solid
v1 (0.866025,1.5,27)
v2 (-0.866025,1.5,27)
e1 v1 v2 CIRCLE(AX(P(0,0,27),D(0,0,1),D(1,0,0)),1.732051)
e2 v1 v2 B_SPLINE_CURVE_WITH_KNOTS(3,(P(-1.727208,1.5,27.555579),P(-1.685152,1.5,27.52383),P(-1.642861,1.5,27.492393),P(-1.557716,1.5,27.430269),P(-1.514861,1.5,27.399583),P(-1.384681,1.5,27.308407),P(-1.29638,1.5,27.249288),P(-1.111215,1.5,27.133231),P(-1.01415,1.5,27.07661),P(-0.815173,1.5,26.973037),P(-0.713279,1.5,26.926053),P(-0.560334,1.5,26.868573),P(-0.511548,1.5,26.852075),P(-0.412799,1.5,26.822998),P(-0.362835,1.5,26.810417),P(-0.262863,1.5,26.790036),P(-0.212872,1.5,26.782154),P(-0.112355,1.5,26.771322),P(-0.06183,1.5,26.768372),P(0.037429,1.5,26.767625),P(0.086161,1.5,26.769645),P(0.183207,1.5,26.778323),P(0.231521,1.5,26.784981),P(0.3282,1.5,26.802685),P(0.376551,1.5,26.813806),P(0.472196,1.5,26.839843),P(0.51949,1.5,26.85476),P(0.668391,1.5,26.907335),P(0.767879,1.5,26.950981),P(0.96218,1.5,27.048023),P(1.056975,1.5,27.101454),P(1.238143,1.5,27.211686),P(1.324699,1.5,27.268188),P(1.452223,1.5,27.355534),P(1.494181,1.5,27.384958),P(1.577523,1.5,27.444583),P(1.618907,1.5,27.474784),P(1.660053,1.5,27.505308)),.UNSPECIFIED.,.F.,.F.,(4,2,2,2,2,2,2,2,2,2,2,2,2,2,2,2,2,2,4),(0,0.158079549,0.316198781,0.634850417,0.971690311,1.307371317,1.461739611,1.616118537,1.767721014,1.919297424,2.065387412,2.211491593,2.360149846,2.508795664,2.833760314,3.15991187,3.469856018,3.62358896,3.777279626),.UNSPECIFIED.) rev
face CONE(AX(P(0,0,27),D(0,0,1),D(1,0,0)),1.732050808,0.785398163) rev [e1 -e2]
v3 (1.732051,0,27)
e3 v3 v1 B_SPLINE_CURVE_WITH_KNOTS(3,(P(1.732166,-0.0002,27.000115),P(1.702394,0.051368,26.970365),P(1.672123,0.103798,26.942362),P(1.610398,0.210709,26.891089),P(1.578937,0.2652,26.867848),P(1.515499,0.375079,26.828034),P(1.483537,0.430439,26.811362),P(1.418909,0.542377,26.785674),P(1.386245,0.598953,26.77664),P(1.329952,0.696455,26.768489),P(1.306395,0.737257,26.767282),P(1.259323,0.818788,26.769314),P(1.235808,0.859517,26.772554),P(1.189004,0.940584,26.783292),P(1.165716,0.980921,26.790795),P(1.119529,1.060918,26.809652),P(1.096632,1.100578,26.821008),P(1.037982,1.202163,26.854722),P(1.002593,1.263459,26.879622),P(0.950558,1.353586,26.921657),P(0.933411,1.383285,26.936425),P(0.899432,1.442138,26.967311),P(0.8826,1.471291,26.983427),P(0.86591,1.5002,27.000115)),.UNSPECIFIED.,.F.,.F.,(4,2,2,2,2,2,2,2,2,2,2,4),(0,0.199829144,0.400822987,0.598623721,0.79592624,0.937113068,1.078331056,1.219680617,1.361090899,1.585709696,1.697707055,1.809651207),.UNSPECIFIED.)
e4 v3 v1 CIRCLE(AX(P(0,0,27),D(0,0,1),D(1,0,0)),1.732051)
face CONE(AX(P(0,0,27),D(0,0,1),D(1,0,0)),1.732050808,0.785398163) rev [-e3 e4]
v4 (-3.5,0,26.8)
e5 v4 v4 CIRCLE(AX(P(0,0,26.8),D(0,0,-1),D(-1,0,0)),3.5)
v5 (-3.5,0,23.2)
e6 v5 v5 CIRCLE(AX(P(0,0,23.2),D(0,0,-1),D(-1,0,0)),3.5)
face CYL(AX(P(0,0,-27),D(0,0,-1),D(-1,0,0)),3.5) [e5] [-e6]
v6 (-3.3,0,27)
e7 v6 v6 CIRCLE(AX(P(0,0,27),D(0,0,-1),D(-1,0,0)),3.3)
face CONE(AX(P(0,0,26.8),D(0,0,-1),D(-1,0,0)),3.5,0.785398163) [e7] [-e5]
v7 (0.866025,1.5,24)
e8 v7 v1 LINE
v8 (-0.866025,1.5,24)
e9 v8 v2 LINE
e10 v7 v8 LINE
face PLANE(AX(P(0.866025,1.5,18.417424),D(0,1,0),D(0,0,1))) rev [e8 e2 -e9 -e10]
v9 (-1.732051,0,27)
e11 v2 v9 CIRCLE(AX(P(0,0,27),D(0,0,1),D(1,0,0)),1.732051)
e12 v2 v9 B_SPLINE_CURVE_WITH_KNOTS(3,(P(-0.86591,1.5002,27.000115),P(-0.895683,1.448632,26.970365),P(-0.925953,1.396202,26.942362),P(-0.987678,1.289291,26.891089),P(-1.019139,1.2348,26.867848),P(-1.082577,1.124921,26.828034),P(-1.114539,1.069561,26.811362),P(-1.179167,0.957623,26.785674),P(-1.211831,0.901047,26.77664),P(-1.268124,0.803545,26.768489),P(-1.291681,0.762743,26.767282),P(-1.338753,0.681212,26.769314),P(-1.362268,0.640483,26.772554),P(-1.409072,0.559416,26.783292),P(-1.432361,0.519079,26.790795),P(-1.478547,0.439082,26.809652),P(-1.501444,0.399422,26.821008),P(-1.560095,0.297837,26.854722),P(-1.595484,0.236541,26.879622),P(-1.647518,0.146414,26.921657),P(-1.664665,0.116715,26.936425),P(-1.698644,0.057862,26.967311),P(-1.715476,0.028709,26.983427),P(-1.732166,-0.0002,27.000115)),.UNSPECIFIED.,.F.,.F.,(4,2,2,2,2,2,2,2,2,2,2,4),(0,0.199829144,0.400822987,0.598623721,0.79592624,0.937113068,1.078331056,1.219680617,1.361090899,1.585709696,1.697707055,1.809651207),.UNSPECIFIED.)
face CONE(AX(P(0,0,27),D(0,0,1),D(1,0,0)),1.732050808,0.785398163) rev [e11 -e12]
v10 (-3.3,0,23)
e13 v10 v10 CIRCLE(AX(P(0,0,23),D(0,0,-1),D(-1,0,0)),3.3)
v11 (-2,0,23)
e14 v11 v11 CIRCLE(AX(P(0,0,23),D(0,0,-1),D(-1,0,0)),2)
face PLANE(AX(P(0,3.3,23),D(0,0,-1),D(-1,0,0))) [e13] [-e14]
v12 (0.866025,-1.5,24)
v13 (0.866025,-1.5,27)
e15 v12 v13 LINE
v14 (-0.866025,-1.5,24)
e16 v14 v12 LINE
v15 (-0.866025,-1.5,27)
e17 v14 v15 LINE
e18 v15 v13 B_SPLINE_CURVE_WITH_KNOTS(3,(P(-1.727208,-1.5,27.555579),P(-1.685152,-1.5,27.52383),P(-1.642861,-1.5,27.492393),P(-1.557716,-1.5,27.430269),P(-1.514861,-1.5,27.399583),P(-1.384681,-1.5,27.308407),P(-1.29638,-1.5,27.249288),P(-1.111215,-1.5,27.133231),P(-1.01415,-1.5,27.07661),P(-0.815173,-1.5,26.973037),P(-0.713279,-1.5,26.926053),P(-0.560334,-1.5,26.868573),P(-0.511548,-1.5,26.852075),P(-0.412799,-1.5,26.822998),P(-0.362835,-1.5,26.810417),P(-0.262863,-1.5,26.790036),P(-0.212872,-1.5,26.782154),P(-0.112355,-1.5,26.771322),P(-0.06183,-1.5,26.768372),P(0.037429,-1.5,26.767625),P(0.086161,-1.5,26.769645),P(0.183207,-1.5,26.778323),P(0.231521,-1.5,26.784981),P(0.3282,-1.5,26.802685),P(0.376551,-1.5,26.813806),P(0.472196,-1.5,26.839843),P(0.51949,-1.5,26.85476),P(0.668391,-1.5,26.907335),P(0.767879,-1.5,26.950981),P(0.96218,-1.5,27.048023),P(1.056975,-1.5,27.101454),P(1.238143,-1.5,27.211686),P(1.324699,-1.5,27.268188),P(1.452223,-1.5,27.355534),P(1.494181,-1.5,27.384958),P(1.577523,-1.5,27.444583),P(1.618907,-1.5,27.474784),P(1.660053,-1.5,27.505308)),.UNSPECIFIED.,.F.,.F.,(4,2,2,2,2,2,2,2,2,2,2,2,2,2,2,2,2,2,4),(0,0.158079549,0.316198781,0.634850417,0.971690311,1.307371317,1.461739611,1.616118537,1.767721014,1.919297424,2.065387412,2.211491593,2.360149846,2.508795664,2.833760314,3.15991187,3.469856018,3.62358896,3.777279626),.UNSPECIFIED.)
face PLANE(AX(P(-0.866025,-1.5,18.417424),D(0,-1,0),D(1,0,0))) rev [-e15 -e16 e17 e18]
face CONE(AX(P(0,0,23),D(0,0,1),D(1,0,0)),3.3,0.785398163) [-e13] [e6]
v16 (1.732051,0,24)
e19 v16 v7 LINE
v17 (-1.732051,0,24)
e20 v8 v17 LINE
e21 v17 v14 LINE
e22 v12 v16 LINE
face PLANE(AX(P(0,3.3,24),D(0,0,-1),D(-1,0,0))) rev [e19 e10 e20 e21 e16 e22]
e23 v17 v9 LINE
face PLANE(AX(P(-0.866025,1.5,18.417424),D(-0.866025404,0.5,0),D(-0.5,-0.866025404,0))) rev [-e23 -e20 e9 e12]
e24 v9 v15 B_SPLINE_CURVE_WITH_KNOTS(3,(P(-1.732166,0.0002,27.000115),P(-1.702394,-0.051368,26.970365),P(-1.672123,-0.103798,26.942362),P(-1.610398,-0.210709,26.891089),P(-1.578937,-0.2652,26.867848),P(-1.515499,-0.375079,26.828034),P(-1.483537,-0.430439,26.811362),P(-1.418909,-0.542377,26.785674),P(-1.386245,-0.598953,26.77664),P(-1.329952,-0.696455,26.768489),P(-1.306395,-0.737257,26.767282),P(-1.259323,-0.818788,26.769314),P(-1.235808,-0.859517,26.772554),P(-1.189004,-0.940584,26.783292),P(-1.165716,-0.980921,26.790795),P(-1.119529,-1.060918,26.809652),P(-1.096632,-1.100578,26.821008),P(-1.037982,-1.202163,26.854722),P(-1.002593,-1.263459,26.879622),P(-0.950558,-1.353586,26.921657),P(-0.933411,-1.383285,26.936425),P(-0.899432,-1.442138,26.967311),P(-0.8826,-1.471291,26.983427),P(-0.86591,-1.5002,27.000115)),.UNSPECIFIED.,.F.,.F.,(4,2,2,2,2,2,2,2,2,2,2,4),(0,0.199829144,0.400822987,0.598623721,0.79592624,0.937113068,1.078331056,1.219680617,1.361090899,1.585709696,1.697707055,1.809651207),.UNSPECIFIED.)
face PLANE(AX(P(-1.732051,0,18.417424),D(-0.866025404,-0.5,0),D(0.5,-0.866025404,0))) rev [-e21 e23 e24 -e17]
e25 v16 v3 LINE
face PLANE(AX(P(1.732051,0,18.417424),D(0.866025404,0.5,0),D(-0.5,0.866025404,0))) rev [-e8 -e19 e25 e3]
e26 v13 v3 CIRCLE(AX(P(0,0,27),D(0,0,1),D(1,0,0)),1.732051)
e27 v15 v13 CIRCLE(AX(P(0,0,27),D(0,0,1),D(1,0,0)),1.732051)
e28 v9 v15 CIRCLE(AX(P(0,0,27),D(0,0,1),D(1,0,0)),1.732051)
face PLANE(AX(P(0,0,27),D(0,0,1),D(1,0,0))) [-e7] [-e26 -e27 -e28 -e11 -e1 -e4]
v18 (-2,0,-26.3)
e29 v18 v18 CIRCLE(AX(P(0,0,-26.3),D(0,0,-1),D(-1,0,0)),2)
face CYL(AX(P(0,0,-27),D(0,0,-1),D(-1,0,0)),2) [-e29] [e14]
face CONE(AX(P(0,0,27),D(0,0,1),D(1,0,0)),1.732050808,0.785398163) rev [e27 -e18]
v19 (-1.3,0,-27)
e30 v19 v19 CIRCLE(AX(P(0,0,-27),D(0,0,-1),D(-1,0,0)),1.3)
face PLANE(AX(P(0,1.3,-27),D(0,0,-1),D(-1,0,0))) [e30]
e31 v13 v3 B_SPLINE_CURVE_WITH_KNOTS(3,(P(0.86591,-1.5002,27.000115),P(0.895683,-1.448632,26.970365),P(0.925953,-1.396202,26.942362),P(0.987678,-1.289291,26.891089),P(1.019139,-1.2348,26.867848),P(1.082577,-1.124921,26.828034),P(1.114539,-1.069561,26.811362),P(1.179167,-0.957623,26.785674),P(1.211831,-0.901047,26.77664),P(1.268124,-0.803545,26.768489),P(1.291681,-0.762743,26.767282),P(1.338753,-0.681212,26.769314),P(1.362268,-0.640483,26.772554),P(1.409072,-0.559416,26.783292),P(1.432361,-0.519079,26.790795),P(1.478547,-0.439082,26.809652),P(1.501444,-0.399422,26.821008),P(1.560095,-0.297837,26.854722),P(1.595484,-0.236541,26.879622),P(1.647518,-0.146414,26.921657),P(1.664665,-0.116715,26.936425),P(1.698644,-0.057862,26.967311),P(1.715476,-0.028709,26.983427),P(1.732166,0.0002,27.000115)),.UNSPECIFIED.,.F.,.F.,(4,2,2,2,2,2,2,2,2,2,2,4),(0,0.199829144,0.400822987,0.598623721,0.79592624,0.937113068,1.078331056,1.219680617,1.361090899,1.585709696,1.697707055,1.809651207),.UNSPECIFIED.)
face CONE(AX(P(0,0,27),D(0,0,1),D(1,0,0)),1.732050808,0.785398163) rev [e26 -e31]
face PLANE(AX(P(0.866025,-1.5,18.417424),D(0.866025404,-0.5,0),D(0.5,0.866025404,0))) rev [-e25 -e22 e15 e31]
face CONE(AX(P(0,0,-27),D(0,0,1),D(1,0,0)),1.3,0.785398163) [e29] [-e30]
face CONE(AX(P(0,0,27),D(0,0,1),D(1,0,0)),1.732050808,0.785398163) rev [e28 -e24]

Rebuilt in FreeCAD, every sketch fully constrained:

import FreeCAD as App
import Part
import Sketcher

V = App.Vector
Q = App.Units.Quantity


def faces_at(feature, points):
    """Names of the faces that lie closest to the given points."""
    faces = feature.Shape.Faces
    near = lambda p: min(range(len(faces)), key=lambda i: faces[i].distToShape(Part.Vertex(*p))[0])
    return sorted({f"Face{near(p) + 1}" for p in points})

doc = App.newDocument("Part")
body = doc.addObject("PartDesign::Body", "Body")

sketch1 = doc.addObject("Sketcher::SketchObject", "Sketch")
body.addObject(sketch1)
sketch1.AttachmentSupport = (doc.YZ_Plane, [""])
sketch1.MapMode = "FlatFace"
sketch1.addGeometry(Part.LineSegment(V(3.3, 27, 0), V(0, 27, 0)), False)
sketch1.addGeometry(Part.LineSegment(V(0, 27, 0), V(0, -27, 0)), False)
sketch1.addGeometry(Part.LineSegment(V(0, -27, 0), V(1.3, -27, 0)), False)
sketch1.addGeometry(Part.LineSegment(V(1.3, -27, 0), V(2, -26.3, 0)), False)
sketch1.addGeometry(Part.LineSegment(V(2, -26.3, 0), V(2, 23, 0)), False)
sketch1.addGeometry(Part.LineSegment(V(2, 23, 0), V(3.3, 23, 0)), False)
sketch1.addGeometry(Part.LineSegment(V(3.3, 23, 0), V(3.5, 23.2, 0)), False)
sketch1.addGeometry(Part.LineSegment(V(3.5, 23.2, 0), V(3.5, 26.8, 0)), False)
sketch1.addGeometry(Part.LineSegment(V(3.5, 26.8, 0), V(3.3, 27, 0)), False)
sketch1.addConstraint(Sketcher.Constraint("Coincident", 0, 2, 1, 1))
sketch1.addConstraint(Sketcher.Constraint("Coincident", 1, 2, 2, 1))
sketch1.addConstraint(Sketcher.Constraint("Coincident", 2, 2, 3, 1))
sketch1.addConstraint(Sketcher.Constraint("Coincident", 3, 2, 4, 1))
sketch1.addConstraint(Sketcher.Constraint("Coincident", 4, 2, 5, 1))
sketch1.addConstraint(Sketcher.Constraint("Coincident", 5, 2, 6, 1))
sketch1.addConstraint(Sketcher.Constraint("Coincident", 6, 2, 7, 1))
sketch1.addConstraint(Sketcher.Constraint("Coincident", 7, 2, 8, 1))
sketch1.addConstraint(Sketcher.Constraint("Coincident", 8, 2, 0, 1))
sketch1.addConstraint(Sketcher.Constraint("Horizontal", 0))
sketch1.addConstraint(Sketcher.Constraint("Vertical", 1))
sketch1.addConstraint(Sketcher.Constraint("Horizontal", 2))
sketch1.addConstraint(Sketcher.Constraint("Vertical", 4))
sketch1.addConstraint(Sketcher.Constraint("Horizontal", 5))
sketch1.addConstraint(Sketcher.Constraint("Vertical", 7))
sketch1.addConstraint(Sketcher.Constraint("Symmetric", 0, 2, 1, 2, -1, 1))
sketch1.addConstraint(Sketcher.Constraint("Parallel", 3, 6))
sketch1.addConstraint(Sketcher.Constraint("Perpendicular", 6, 8))
sketch1.addConstraint(Sketcher.Constraint("Vertical", 5, 2, 8, 2))
sketch1.addConstraint(Sketcher.Constraint("Equal", 2, 5))
sketch1.addConstraint(Sketcher.Constraint("Equal", 6, 8))
sketch1.addConstraint(Sketcher.Constraint("DistanceY", 1, 2, 1, 1, Q("54 mm")))
sketch1.addConstraint(Sketcher.Constraint("DistanceX", 0, 2, 0, 1, Q("3.3 mm")))
sketch1.addConstraint(Sketcher.Constraint("DistanceX", 2, 1, 2, 2, Q("1.3 mm")))
sketch1.addConstraint(Sketcher.Constraint("DistanceY", 4, 1, 4, 2, Q("49.3 mm")))
sketch1.addConstraint(Sketcher.Constraint("DistanceY", 7, 1, 7, 2, Q("3.6 mm")))
revolution = doc.addObject("PartDesign::Revolution", "Revolution")
body.addObject(revolution)
revolution.Profile = sketch1
revolution.ReferenceAxis = (sketch1, ["V_Axis"])
revolution.Angle = 360

sketch2 = doc.addObject("Sketcher::SketchObject", "Sketch001")
body.addObject(sketch2)
sketch2.AttachmentSupport = (doc.XY_Plane, [""])
sketch2.MapMode = "FlatFace"
sketch2.AttachmentOffset = App.Placement(V(0, 0, 27), App.Rotation())
sketch2.addGeometry(Part.LineSegment(V(0.9, 1.5, 0), V(-0.9, 1.5, 0)), False)
sketch2.addGeometry(Part.LineSegment(V(-0.9, 1.5, 0), V(-1.7, 0, 0)), False)
sketch2.addGeometry(Part.LineSegment(V(-1.7, 0, 0), V(-0.9, -1.5, 0)), False)
sketch2.addGeometry(Part.LineSegment(V(-0.9, -1.5, 0), V(0.9, -1.5, 0)), False)
sketch2.addGeometry(Part.LineSegment(V(0.9, -1.5, 0), V(1.7, 0, 0)), False)
sketch2.addGeometry(Part.LineSegment(V(1.7, 0, 0), V(0.9, 1.5, 0)), False)
sketch2.addConstraint(Sketcher.Constraint("Coincident", 0, 2, 1, 1))
sketch2.addConstraint(Sketcher.Constraint("Coincident", 1, 2, 2, 1))
sketch2.addConstraint(Sketcher.Constraint("Coincident", 2, 2, 3, 1))
sketch2.addConstraint(Sketcher.Constraint("Coincident", 3, 2, 4, 1))
sketch2.addConstraint(Sketcher.Constraint("Coincident", 4, 2, 5, 1))
sketch2.addConstraint(Sketcher.Constraint("Coincident", 5, 2, 0, 1))
sketch2.addConstraint(Sketcher.Constraint("Horizontal", 0))
sketch2.addConstraint(Sketcher.Constraint("Horizontal", 3))
sketch2.addConstraint(Sketcher.Constraint("Symmetric", 0, 2, 3, 2, -1, 1))
sketch2.addConstraint(Sketcher.Constraint("Symmetric", 1, 2, 4, 2, -1, 1))
sketch2.addConstraint(Sketcher.Constraint("PointOnObject", 1, 2, -1))
sketch2.addConstraint(Sketcher.Constraint("Parallel", 2, 5))
sketch2.addConstraint(Sketcher.Constraint("Vertical", 0, 2, 2, 2))
sketch2.addConstraint(Sketcher.Constraint("Angle", 1, Q("-120 deg")))
sketch2.addConstraint(Sketcher.Constraint("DistanceY", 2, 2, 0, 2, Q("3 mm")))
sketch2.addConstraint(Sketcher.Constraint("DistanceX", 0, 2, 0, 1, Q("1.732051 mm")))
pocket1 = doc.addObject("PartDesign::Pocket", "Pocket")
body.addObject(pocket1)
pocket1.Profile = sketch2
pocket1.Length = 3
body2 = doc.addObject("PartDesign::Body", "Body001")

sketch3 = doc.addObject("Sketcher::SketchObject", "Sketch002")
body2.addObject(sketch3)
sketch3.AttachmentSupport = (doc.getObject("XY_Plane001"), [""])
sketch3.MapMode = "FlatFace"
sketch3.AttachmentOffset = App.Placement(V(0, 0, 27), App.Rotation())
sketch3.addGeometry(Part.Circle(V(0, 0, 0), V(0, 0, 1), 1.7), False)
sketch3.addConstraint(Sketcher.Constraint("Coincident", 0, 3, -1, 1))
sketch3.addConstraint(Sketcher.Constraint("Diameter", 0, Q("3.464102 mm")))
pad1 = doc.addObject("PartDesign::Pad", "Pad")
body2.addObject(pad1)
pad1.Profile = sketch3
pad1.Length = 3
pad1.Reversed = True
doc.recompute()

datumplane = doc.addObject("PartDesign::Plane", "DatumPlane")
body2.addObject(datumplane)
datumplane.AttachmentSupport = (doc.getObject("XY_Plane001"), [""])
datumplane.MapMode = "FlatFace"
datumplane.AttachmentOffset = App.Placement(V(0, 0, 27), App.Rotation())
draft = doc.addObject("PartDesign::Draft", "Draft")
body2.addObject(draft)
draft.Base = (pad1, faces_at(pad1, [(-1.732, 0, 25.5)]))
draft.NeutralPlane = (datumplane, [""])
draft.Angle = 45
draft.Reversed = True
doc.recompute()

boolean = doc.addObject("PartDesign::Boolean", "Boolean")
body.addObject(boolean)
boolean.Type = "Cut"
boolean.addObjects([body2])

doc.recompute()
